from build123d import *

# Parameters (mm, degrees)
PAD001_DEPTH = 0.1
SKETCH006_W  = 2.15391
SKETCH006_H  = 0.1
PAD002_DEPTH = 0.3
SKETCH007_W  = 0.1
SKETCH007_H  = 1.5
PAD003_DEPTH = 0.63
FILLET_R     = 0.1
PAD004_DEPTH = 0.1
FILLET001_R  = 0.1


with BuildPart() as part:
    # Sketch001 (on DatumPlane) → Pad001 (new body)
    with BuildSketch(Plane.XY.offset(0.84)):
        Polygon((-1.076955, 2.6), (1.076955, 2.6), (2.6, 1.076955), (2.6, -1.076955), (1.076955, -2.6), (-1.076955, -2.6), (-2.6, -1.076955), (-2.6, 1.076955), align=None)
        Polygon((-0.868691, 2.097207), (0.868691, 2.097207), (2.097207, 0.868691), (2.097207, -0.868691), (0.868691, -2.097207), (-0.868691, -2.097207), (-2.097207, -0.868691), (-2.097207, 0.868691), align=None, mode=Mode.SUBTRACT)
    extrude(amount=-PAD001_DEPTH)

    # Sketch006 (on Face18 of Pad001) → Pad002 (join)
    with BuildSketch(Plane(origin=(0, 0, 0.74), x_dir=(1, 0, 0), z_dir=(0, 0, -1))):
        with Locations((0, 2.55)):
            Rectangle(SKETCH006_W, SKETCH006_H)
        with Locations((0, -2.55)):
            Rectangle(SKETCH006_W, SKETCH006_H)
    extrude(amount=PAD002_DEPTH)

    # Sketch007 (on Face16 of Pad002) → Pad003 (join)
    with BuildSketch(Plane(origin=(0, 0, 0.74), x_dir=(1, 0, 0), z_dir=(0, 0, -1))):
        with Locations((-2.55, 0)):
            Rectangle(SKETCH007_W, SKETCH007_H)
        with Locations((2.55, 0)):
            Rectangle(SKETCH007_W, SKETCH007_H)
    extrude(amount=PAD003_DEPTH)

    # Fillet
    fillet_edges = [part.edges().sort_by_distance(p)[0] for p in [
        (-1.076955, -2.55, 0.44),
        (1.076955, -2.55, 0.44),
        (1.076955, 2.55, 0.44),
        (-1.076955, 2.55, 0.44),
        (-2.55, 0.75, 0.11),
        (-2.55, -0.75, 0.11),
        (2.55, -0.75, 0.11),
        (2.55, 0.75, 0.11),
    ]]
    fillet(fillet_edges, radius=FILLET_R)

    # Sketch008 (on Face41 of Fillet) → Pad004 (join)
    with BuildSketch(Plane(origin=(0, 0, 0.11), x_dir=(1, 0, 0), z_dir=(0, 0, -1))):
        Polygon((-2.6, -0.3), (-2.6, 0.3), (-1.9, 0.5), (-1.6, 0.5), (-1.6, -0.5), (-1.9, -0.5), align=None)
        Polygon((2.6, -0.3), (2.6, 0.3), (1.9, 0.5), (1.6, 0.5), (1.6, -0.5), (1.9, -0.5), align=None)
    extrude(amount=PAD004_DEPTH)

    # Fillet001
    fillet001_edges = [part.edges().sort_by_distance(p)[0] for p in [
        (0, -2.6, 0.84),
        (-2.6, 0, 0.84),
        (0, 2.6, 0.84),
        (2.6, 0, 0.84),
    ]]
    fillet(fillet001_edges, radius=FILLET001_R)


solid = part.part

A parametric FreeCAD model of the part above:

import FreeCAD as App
import Part
import Sketcher

V = App.Vector


def edges_at(feature, points):
    """Names of the edges that pass closest to the given points."""
    edges = feature.Shape.Edges
    near = lambda p: min(range(len(edges)), key=lambda i: edges[i].distToShape(Part.Vertex(*p))[0])
    return sorted({f"Edge{near(p) + 1}" for p in points})


def add_polygon(sketch, points):
    """Adds a closed chain of lines whose ends are joined by coincident constraints."""
    first, n = sketch.GeometryCount, len(points)
    for a, b in zip(points, points[1:] + points[:1]):
        sketch.addGeometry(Part.LineSegment(App.Vector(*a, 0), App.Vector(*b, 0)), False)
    for i in range(n):
        sketch.addConstraint(Sketcher.Constraint("Coincident", first + i, 2, first + (i + 1) % n, 1))

doc = App.newDocument("Part")
params = doc.addObject("Spreadsheet::Sheet", "Params")
for row, (alias, value) in enumerate([
    ("pad1_length", "0.1 mm"),
    ("sketch2_height", "0.1 mm"),
    ("pad2_length", "0.3 mm"),
    ("sketch3_width", "0.1 mm"),
    ("sketch3_height", "1.5 mm"),
    ("pad3_length", "0.63 mm"),
    ("fillet_radius", "0.1 mm"),
    ("sketch4_height", "1 mm"),
    ("sketch4_width", "0.3 mm"),
    ("sketch4_height2", "0.6 mm"),
    ("pad4_length", "0.1 mm"),
    ("fillet2_radius", "0.1 mm"),
], start=1):
    params.set(f"A{row}", alias)
    params.set(f"B{row}", "=" + value)
    params.setAlias(f"B{row}", alias)

body = doc.addObject("PartDesign::Body", "Body")

sketch1 = body.newObject("Sketcher::SketchObject", "Sketch")
sketch1.AttachmentSupport = (doc.getObject("XY_Plane"), [""])
sketch1.MapMode = "FlatFace"
sketch1.AttachmentOffset = App.Placement(V(0, 0, 0.84), App.Rotation())
add_polygon(sketch1, [(1.1, 2.6), (-1.1, 2.6), (-2.6, 1.1), (-2.6, -1.1), (-1.1, -2.6), (1.1, -2.6), (2.6, -1.1), (2.6, 1.1)])
add_polygon(sketch1, [(-0.9, 2.1), (0.9, 2.1), (2.1, 0.9), (2.1, -0.9), (0.9, -2.1), (-0.9, -2.1), (-2.1, -0.9), (-2.1, 0.9)])
sketch1.addConstraint([
    Sketcher.Constraint("Horizontal", 0),
    Sketcher.Constraint("Vertical", 2),
    Sketcher.Constraint("Horizontal", 4),
    Sketcher.Constraint("Vertical", 6),
    Sketcher.Constraint("Horizontal", 8),
    Sketcher.Constraint("Vertical", 10),
    Sketcher.Constraint("Horizontal", 12),
    Sketcher.Constraint("Vertical", 14),
    Sketcher.Constraint("Symmetric", 0, 2, 4, 2, -1, 1),
    Sketcher.Constraint("Symmetric", 1, 2, 5, 2, -1, 1),
    Sketcher.Constraint("Symmetric", 8, 2, 12, 2, -1, 1),
    Sketcher.Constraint("Symmetric", 9, 2, 13, 2, -1, 1),
    Sketcher.Constraint("Perpendicular", 1, 3),
    Sketcher.Constraint("Perpendicular", 5, 7),
    Sketcher.Constraint("Parallel", 7, 9),
    Sketcher.Constraint("Perpendicular", 9, 11),
    Sketcher.Constraint("Perpendicular", 13, 15),
    Sketcher.Constraint("Horizontal", 2, 2, 5, 2),
    Sketcher.Constraint("Horizontal", 1, 2, 6, 2),
    Sketcher.Constraint("Horizontal", 10, 2, 13, 2),
    Sketcher.Constraint("Horizontal", 9, 2, 14, 2),
    Sketcher.Constraint("Vertical", 0, 2, 3, 2),
    Sketcher.Constraint("Equal", 4, 2),
    Sketcher.Constraint("Equal", 12, 10),
    Sketcher.Constraint("DistanceY", -1, 1, 0, 2, 2.6),
    Sketcher.Constraint("DistanceX", 0, 2, 0, 1, 2.15391),
    Sketcher.Constraint("DistanceY", 10, 2, 8, 2, 2.965898),
    Sketcher.Constraint("DistanceX", 8, 1, 8, 2, 1.737382),
])
pad1 = body.newObject("PartDesign::Pad", "Pad")
pad1.Profile = sketch1
pad1.setExpression("Length", "Params.pad1_length")
pad1.Reversed = True

sketch2 = body.newObject("Sketcher::SketchObject", "Sketch001")
sketch2.AttachmentSupport = (doc.getObject("XY_Plane"), [""])
sketch2.MapMode = "FlatFace"
sketch2.AttachmentOffset = App.Placement(V(0, 0, 0.74), App.Rotation())
add_polygon(sketch2, [(-1.08, -2.6), (-1.08, -2.5), (1.08, -2.5), (1.08, -2.6)])
add_polygon(sketch2, [(-1.08, 2.5), (-1.08, 2.6), (1.08, 2.6), (1.08, 2.5)])
sketch2.addConstraint([
    Sketcher.Constraint("Vertical", 0),
    Sketcher.Constraint("Horizontal", 1),
    Sketcher.Constraint("Vertical", 2),
    Sketcher.Constraint("Horizontal", 3),
    Sketcher.Constraint("Vertical", 4),
    Sketcher.Constraint("Horizontal", 5),
    Sketcher.Constraint("Vertical", 6),
    Sketcher.Constraint("Horizontal", 7),
    Sketcher.Constraint("Symmetric", 2, 2, 4, 2, -1, 1),
    Sketcher.Constraint("Symmetric", 0, 2, 6, 2, -1, 1),
    Sketcher.Constraint("Vertical", 3, 2, 4, 2),
    Sketcher.Constraint("DistanceY", 0, 1, 0, 2, 0.1),
    Sketcher.Constraint("DistanceY", 1, 2, 6, 2, 5.0),
    Sketcher.Constraint("DistanceX", 1, 1, 1, 2, 2.15391),
])
sketch2.setExpression("Constraints[19]", "Params.sketch2_height")
pad2 = body.newObject("PartDesign::Pad", "Pad001")
pad2.Profile = sketch2
pad2.setExpression("Length", "Params.pad2_length")
pad2.Reversed = True

sketch3 = body.newObject("Sketcher::SketchObject", "Sketch002")
sketch3.AttachmentSupport = (doc.getObject("XY_Plane"), [""])
sketch3.MapMode = "FlatFace"
sketch3.AttachmentOffset = App.Placement(V(0, 0, 0.74), App.Rotation())
add_polygon(sketch3, [(-2.6, -0.75), (-2.6, 0.75), (-2.5, 0.75), (-2.5, -0.75)])
add_polygon(sketch3, [(2.5, -0.75), (2.5, 0.75), (2.6, 0.75), (2.6, -0.75)])
sketch3.addConstraint([
    Sketcher.Constraint("Vertical", 0),
    Sketcher.Constraint("Horizontal", 1),
    Sketcher.Constraint("Vertical", 2),
    Sketcher.Constraint("Horizontal", 3),
    Sketcher.Constraint("Vertical", 4),
    Sketcher.Constraint("Horizontal", 5),
    Sketcher.Constraint("Vertical", 6),
    Sketcher.Constraint("Horizontal", 7),
    Sketcher.Constraint("Symmetric", 2, 2, 4, 2, -1, 1),
    Sketcher.Constraint("Symmetric", 0, 2, 6, 2, -1, 1),
    Sketcher.Constraint("Horizontal", 1, 2, 4, 2),
    Sketcher.Constraint("DistanceX", 1, 1, 1, 2, 0.1),
    Sketcher.Constraint("DistanceY", 0, 1, 0, 2, 1.5),
    Sketcher.Constraint("DistanceX", 1, 2, 4, 2, 5.0),
])
sketch3.setExpression("Constraints[19]", "Params.sketch3_width")
sketch3.setExpression("Constraints[20]", "Params.sketch3_height")
pad3 = body.newObject("PartDesign::Pad", "Pad002")
pad3.Profile = sketch3
pad3.setExpression("Length", "Params.pad3_length")
pad3.Reversed = True
doc.recompute()

fillet = body.newObject("PartDesign::Fillet", "Fillet")
fillet.Base = (pad3, edges_at(pad3, [
    (-1.077, -2.55, 0.44),
    (1.077, -2.55, 0.44),
    (1.077, 2.55, 0.44),
    (-1.077, 2.55, 0.44),
    (-2.55, 0.75, 0.11),
    (-2.55, -0.75, 0.11),
    (2.55, -0.75, 0.11),
    (2.55, 0.75, 0.11),
]))
fillet.setExpression("Radius", "Params.fillet_radius")

sketch4 = body.newObject("Sketcher::SketchObject", "Sketch003")
sketch4.AttachmentSupport = (doc.getObject("XY_Plane"), [""])
sketch4.MapMode = "FlatFace"
sketch4.AttachmentOffset = App.Placement(V(0, 0, 0.11), App.Rotation())
add_polygon(sketch4, [(-2.6, -0.3), (-2.6, 0.3), (-1.9, 0.5), (-1.6, 0.5), (-1.6, -0.5), (-1.9, -0.5)])
add_polygon(sketch4, [(2.6, 0.3), (2.6, -0.3), (1.9, -0.5), (1.6, -0.5), (1.6, 0.5), (1.9, 0.5)])
sketch4.addConstraint([
    Sketcher.Constraint("Vertical", 0),
    Sketcher.Constraint("Horizontal", 2),
    Sketcher.Constraint("Vertical", 3),
    Sketcher.Constraint("Horizontal", 4),
    Sketcher.Constraint("Vertical", 6),
    Sketcher.Constraint("Horizontal", 8),
    Sketcher.Constraint("Vertical", 9),
    Sketcher.Constraint("Horizontal", 10),
    Sketcher.Constraint("Symmetric", 0, 2, 6, 2, -1, 1),
    Sketcher.Constraint("Symmetric", 1, 2, 7, 2, -1, 1),
    Sketcher.Constraint("Symmetric", 3, 2, 9, 2, -1, 1),
    Sketcher.Constraint("Symmetric", 4, 2, 7, 2, -2),
    Sketcher.Constraint("Parallel", 5, 11),
    Sketcher.Constraint("Horizontal", 5, 2, 6, 2),
    Sketcher.Constraint("Horizontal", 0, 2, 11, 2),
    Sketcher.Constraint("DistanceY", 3, 2, 3, 1, 1.0),
    Sketcher.Constraint("DistanceX", 2, 1, 2, 2, 0.3),
    Sketcher.Constraint("DistanceY", 0, 1, 0, 2, 0.6),
    Sketcher.Constraint("DistanceX", 0, 2, 2, 2, 1.0),
    Sketcher.Constraint("DistanceX", 0, 2, -1, 1, 2.6),
])
sketch4.setExpression("Constraints[27]", "Params.sketch4_height")
sketch4.setExpression("Constraints[28]", "Params.sketch4_width")
sketch4.setExpression("Constraints[29]", "Params.sketch4_height2")
pad4 = body.newObject("PartDesign::Pad", "Pad003")
pad4.Profile = sketch4
pad4.setExpression("Length", "Params.pad4_length")
pad4.Reversed = True
doc.recompute()

fillet2 = body.newObject("PartDesign::Fillet", "Fillet001")
fillet2.Base = (pad4, edges_at(pad4, [
    (0, -2.6, 0.84),
    (-2.6, 0, 0.84),
    (0, 2.6, 0.84),
    (2.6, 0, 0.84),
]))
fillet2.setExpression("Radius", "Params.fillet2_radius")

doc.recompute()
